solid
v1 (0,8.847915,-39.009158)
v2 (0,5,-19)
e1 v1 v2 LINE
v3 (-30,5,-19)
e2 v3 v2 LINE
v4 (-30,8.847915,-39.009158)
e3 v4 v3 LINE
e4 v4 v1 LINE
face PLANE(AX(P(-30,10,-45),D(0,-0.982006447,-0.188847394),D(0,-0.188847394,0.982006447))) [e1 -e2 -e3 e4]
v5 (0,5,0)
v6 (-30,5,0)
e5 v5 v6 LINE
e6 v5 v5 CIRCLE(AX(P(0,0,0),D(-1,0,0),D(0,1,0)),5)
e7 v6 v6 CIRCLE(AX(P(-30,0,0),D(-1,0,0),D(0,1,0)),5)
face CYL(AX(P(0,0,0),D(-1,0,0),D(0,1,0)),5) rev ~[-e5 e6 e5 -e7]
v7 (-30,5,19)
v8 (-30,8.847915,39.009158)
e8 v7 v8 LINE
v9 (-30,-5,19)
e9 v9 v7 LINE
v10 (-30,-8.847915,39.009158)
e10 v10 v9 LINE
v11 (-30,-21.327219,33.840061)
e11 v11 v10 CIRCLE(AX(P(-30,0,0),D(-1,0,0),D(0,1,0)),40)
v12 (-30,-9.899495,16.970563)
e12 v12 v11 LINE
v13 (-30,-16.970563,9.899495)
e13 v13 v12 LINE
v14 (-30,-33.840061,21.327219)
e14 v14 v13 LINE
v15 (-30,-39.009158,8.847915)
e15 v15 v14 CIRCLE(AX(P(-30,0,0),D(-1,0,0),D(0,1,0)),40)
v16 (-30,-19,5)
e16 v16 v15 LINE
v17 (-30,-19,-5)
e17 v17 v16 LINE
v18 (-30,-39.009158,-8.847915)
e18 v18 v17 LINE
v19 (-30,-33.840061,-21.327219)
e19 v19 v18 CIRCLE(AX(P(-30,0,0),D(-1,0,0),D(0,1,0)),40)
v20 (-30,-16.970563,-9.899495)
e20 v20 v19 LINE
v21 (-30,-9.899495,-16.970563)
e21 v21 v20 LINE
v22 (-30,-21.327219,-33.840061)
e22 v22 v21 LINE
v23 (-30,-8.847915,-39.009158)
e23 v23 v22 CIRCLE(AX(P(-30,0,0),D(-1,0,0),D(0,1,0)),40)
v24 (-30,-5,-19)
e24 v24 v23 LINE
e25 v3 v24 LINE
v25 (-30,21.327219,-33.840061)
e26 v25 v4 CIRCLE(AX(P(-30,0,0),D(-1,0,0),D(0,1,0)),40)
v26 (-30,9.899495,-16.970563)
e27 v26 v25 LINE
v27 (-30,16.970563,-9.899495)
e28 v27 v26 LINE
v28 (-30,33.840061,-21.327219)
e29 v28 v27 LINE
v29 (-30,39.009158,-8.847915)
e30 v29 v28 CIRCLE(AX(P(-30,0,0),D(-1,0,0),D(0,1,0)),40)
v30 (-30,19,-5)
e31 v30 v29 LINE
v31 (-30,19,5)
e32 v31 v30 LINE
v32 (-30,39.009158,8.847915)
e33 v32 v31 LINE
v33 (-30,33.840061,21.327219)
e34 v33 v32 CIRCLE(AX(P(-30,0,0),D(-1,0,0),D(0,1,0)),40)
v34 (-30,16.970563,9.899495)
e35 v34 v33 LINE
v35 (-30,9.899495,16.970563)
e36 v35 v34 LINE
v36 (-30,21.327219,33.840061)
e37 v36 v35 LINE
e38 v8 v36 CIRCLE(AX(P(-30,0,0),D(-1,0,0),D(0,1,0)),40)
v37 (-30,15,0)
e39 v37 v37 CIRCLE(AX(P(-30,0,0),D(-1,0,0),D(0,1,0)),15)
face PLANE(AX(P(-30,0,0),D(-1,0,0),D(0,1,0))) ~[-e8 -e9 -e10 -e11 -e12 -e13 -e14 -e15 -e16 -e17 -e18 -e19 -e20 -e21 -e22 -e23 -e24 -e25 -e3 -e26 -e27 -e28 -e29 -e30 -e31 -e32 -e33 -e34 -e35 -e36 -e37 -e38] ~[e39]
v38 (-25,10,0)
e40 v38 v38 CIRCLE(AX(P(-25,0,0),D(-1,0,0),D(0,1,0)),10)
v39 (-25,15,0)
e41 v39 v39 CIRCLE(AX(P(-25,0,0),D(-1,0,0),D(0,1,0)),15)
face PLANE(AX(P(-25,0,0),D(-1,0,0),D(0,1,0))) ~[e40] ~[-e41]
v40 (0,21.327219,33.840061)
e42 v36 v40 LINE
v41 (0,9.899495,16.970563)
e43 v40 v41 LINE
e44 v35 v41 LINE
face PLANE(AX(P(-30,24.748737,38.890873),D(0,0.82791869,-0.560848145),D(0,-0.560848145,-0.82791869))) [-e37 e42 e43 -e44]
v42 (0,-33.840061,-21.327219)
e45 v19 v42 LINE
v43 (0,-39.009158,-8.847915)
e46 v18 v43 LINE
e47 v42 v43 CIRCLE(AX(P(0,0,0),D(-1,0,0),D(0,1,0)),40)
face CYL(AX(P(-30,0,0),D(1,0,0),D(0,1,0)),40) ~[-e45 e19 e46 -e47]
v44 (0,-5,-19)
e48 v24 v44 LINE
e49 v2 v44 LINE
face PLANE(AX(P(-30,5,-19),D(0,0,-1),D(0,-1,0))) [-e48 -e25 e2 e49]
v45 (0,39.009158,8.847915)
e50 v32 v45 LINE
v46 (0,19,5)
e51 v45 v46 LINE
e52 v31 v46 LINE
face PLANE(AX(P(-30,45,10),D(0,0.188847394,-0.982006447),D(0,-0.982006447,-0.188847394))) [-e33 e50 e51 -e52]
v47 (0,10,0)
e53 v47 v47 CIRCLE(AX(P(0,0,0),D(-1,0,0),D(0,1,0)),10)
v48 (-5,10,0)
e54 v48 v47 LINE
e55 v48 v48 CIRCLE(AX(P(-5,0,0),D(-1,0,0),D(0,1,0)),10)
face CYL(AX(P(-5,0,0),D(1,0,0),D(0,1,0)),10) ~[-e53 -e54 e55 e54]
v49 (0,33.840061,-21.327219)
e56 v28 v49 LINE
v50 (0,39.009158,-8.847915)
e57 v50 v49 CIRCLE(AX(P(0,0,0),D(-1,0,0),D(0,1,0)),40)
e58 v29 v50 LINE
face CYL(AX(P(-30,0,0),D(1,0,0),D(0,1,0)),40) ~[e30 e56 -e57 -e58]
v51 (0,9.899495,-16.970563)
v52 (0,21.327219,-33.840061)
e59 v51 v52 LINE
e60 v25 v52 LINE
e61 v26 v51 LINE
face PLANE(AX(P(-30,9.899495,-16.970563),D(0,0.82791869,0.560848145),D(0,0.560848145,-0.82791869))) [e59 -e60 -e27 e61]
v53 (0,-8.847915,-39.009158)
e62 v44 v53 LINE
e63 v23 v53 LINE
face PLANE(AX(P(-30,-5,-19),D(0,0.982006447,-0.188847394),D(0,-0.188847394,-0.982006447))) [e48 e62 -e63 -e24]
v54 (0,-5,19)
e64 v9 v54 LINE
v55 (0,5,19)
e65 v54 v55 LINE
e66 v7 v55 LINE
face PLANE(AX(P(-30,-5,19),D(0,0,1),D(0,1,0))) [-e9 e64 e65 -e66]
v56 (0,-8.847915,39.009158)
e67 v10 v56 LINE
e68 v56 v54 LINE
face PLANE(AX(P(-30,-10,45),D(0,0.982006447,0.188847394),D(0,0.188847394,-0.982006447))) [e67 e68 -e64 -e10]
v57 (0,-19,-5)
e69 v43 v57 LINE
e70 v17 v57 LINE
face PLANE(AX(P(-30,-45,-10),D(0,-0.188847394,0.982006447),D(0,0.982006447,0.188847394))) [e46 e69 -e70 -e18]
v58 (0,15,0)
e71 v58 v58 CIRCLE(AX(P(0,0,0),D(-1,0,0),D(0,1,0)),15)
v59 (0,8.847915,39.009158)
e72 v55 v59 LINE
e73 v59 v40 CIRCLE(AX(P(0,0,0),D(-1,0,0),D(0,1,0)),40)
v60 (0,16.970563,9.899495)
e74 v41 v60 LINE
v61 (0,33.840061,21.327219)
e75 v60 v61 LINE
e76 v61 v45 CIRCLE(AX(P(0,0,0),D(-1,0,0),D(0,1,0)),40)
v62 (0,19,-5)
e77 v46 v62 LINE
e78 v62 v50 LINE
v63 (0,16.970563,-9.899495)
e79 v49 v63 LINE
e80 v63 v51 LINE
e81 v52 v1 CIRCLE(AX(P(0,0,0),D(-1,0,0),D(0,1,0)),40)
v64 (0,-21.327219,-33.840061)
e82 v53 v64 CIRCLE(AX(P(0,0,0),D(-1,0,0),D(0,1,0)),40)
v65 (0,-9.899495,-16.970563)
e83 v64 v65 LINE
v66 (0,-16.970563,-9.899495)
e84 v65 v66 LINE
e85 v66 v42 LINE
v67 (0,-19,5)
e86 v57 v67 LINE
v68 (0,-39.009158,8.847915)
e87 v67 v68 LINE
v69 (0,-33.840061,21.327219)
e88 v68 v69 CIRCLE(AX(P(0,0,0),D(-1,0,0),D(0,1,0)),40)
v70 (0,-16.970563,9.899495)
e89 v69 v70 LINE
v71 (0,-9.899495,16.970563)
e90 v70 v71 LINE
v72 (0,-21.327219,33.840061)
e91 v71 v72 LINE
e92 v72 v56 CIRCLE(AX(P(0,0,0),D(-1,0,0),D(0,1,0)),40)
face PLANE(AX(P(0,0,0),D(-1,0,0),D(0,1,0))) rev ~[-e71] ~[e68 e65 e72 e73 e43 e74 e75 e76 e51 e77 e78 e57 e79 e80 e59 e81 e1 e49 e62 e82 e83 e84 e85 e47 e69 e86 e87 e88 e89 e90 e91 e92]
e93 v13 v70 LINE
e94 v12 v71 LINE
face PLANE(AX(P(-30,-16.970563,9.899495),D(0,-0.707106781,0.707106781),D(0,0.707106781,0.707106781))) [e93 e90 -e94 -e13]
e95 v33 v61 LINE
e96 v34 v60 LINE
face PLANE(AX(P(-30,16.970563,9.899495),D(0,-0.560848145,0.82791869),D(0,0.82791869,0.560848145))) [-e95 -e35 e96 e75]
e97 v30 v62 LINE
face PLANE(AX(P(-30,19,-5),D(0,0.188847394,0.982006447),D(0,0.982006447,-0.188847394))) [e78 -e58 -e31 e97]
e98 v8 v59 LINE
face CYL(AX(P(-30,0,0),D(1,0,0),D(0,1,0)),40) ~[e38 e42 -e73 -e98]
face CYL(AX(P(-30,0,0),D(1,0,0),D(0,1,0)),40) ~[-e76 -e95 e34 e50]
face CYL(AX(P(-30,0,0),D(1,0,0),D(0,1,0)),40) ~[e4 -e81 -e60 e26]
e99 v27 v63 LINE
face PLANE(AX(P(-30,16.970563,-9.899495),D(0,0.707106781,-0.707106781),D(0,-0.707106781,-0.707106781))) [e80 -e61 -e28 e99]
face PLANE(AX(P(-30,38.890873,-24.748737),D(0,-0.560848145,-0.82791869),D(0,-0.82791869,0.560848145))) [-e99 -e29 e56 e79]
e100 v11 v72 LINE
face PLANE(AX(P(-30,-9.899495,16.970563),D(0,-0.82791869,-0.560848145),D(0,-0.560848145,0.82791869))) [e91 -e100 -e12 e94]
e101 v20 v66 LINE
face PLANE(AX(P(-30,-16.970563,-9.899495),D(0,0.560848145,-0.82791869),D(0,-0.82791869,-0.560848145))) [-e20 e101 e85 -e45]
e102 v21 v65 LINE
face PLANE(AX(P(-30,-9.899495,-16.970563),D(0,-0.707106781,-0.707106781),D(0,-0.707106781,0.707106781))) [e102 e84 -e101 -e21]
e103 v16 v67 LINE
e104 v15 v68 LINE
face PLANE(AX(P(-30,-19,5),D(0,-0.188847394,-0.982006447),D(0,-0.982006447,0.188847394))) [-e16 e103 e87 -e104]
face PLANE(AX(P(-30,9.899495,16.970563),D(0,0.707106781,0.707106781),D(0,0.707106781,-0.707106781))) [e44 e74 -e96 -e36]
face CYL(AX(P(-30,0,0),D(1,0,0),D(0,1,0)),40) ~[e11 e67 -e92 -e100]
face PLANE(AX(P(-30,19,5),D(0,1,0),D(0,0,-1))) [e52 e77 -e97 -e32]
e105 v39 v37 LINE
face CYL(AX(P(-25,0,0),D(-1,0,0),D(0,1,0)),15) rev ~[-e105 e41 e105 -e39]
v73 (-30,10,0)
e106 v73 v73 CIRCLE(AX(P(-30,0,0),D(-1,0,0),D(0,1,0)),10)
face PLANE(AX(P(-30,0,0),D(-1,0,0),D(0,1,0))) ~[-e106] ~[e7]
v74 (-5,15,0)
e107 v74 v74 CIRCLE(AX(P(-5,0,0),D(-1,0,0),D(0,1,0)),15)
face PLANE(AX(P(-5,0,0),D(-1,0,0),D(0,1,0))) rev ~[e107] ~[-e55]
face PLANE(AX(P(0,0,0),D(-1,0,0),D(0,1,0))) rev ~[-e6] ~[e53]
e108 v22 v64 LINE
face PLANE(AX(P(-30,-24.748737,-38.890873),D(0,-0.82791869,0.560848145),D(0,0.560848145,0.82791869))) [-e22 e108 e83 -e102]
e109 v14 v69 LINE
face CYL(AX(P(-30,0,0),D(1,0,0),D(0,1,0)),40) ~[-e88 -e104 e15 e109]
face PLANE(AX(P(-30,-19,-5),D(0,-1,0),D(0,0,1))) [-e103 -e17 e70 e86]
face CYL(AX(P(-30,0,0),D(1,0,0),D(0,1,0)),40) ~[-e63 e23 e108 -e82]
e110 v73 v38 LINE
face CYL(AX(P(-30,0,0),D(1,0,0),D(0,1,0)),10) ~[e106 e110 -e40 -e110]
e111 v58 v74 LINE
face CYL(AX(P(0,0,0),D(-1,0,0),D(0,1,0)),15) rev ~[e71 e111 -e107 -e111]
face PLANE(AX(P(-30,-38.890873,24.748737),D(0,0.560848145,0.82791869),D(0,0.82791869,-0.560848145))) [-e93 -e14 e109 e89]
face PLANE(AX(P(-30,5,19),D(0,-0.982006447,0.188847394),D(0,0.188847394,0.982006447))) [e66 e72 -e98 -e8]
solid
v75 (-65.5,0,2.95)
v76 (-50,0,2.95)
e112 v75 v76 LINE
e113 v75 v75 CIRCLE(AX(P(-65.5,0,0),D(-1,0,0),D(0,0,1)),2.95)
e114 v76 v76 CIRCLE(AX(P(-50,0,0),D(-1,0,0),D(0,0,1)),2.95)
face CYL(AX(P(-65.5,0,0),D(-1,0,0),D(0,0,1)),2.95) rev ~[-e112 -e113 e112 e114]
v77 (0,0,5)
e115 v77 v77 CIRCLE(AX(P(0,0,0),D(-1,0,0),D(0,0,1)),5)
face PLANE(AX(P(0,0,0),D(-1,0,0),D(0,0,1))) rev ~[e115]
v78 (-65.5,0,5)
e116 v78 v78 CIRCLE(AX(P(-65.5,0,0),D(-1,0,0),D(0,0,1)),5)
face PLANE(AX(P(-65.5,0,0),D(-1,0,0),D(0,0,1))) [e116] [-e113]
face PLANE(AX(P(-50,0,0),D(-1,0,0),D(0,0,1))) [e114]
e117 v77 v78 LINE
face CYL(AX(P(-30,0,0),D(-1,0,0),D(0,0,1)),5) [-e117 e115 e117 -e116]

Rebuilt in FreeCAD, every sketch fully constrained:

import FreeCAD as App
import Part
import Sketcher
from FreeCAD import Vector
Q = App.Units.Quantity

doc = App.newDocument("Part")
body = doc.addObject("PartDesign::Body", "Body")

# Sketch on XY plane
sketch1 = body.newObject("Sketcher::SketchObject", "Sketch")
sketch1.AttachmentSupport = (doc.getObject("XY_Plane"), [""])
sketch1.MapMode = "FlatFace"
sketch1.addGeometry(Part.LineSegment(Vector(-30, 5, 0), Vector(0, 5, 0)), False)
sketch1.addGeometry(Part.LineSegment(Vector(0, 5, 0), Vector(0, 10, 0)), False)
sketch1.addGeometry(Part.LineSegment(Vector(0, 10, 0), Vector(-5, 10, 0)), False)
sketch1.addGeometry(Part.LineSegment(Vector(-5, 10, 0), Vector(-5, 15, 0)), False)
sketch1.addGeometry(Part.LineSegment(Vector(-5, 15, 0), Vector(0, 15, 0)), False)
sketch1.addGeometry(Part.LineSegment(Vector(0, 15, 0), Vector(0, 40, 0)), False)
sketch1.addGeometry(Part.LineSegment(Vector(0, 40, 0), Vector(-30, 40, 0)), False)
sketch1.addGeometry(Part.LineSegment(Vector(-30, 40, 0), Vector(-30, 15, 0)), False)
sketch1.addGeometry(Part.LineSegment(Vector(-30, 15, 0), Vector(-25, 15, 0)), False)
sketch1.addGeometry(Part.LineSegment(Vector(-25, 15, 0), Vector(-25, 10, 0)), False)
sketch1.addGeometry(Part.LineSegment(Vector(-25, 10, 0), Vector(-30, 10, 0)), False)
sketch1.addGeometry(Part.LineSegment(Vector(-30, 10, 0), Vector(-30, 5, 0)), False)
sketch1.addConstraint(Sketcher.Constraint("Coincident", 0, 2, 1, 1))
sketch1.addConstraint(Sketcher.Constraint("Coincident", 1, 2, 2, 1))
sketch1.addConstraint(Sketcher.Constraint("Coincident", 2, 2, 3, 1))
sketch1.addConstraint(Sketcher.Constraint("Coincident", 3, 2, 4, 1))
sketch1.addConstraint(Sketcher.Constraint("Coincident", 4, 2, 5, 1))
sketch1.addConstraint(Sketcher.Constraint("Coincident", 5, 2, 6, 1))
sketch1.addConstraint(Sketcher.Constraint("Coincident", 6, 2, 7, 1))
sketch1.addConstraint(Sketcher.Constraint("Coincident", 7, 2, 8, 1))
sketch1.addConstraint(Sketcher.Constraint("Coincident", 8, 2, 9, 1))
sketch1.addConstraint(Sketcher.Constraint("Coincident", 9, 2, 10, 1))
sketch1.addConstraint(Sketcher.Constraint("Coincident", 10, 2, 11, 1))
sketch1.addConstraint(Sketcher.Constraint("Coincident", 11, 2, 0, 1))
sketch1.addConstraint(Sketcher.Constraint("Horizontal", 0))
sketch1.addConstraint(Sketcher.Constraint("Vertical", 1))
sketch1.addConstraint(Sketcher.Constraint("Horizontal", 2))
sketch1.addConstraint(Sketcher.Constraint("Vertical", 3))
sketch1.addConstraint(Sketcher.Constraint("Horizontal", 4))
sketch1.addConstraint(Sketcher.Constraint("Vertical", 5))
sketch1.addConstraint(Sketcher.Constraint("Horizontal", 6))
sketch1.addConstraint(Sketcher.Constraint("Vertical", 7))
sketch1.addConstraint(Sketcher.Constraint("Horizontal", 8))
sketch1.addConstraint(Sketcher.Constraint("Vertical", 9))
sketch1.addConstraint(Sketcher.Constraint("Horizontal", 10))
sketch1.addConstraint(Sketcher.Constraint("Vertical", 11))
sketch1.addConstraint(Sketcher.Constraint("PointOnObject", 0, 2, -2))
sketch1.addConstraint(Sketcher.Constraint("PointOnObject", 4, 2, -2))
sketch1.addConstraint(Sketcher.Constraint("Horizontal", 4, 2, 7, 2))
sketch1.addConstraint(Sketcher.Constraint("Horizontal", 2, 2, 9, 2))
sketch1.addConstraint(Sketcher.Constraint("Vertical", 7, 2, 10, 2))
sketch1.addConstraint(Sketcher.Constraint("Equal", 4, 8))
sketch1.addConstraint(Sketcher.Constraint("Equal", 10, 1))
sketch1.addConstraint(Sketcher.Constraint("Equal", 1, 3))
sketch1.addConstraint(Sketcher.Constraint("DistanceX", 0, 1, 0, 2, Q("30 mm")))
sketch1.addConstraint(Sketcher.Constraint("DistanceX", 2, 2, 2, 1, Q("5 mm")))
sketch1.addConstraint(Sketcher.Constraint("DistanceY", 5, 1, 5, 2, Q("25 mm")))
sketch1.addConstraint(Sketcher.Constraint("DistanceY", -1, 1, 0, 2, Q("5 mm")))
revolution = body.newObject("PartDesign::Revolution", "Revolution")
revolution.Profile = sketch1
revolution.ReferenceAxis = (sketch1, ["H_Axis"])
revolution.Angle = 360

# Sketch on YZ plane
sketch2 = body.newObject("Sketcher::SketchObject", "Sketch001")
sketch2.AttachmentSupport = (doc.getObject("YZ_Plane"), [""])
sketch2.MapMode = "FlatFace"
sketch2.AttachmentOffset = App.Placement(Vector(0, 0, -30), App.Rotation())
sketch2.addGeometry(Part.LineSegment(Vector(45, 10, 0), Vector(45, -10, 0)), False)
sketch2.addGeometry(Part.LineSegment(Vector(45, -10, 0), Vector(19, -5, 0)), False)
sketch2.addGeometry(Part.LineSegment(Vector(19, -5, 0), Vector(19, 5, 0)), False)
sketch2.addGeometry(Part.LineSegment(Vector(19, 5, 0), Vector(45, 10, 0)), False)
sketch2.addConstraint(Sketcher.Constraint("Coincident", 0, 2, 1, 1))
sketch2.addConstraint(Sketcher.Constraint("Coincident", 1, 2, 2, 1))
sketch2.addConstraint(Sketcher.Constraint("Coincident", 2, 2, 3, 1))
sketch2.addConstraint(Sketcher.Constraint("Coincident", 3, 2, 0, 1))
sketch2.addConstraint(Sketcher.Constraint("Vertical", 0))
sketch2.addConstraint(Sketcher.Constraint("Vertical", 2))
sketch2.addConstraint(Sketcher.Constraint("Equal", 1, 3))
sketch2.addConstraint(Sketcher.Constraint("DistanceY", 0, 2, 0, 1, Q("20 mm")))
sketch2.addConstraint(Sketcher.Constraint("DistanceY", 2, 1, 2, 2, Q("10 mm")))
sketch2.addConstraint(Sketcher.Constraint("DistanceX", -1, 1, 0, 2, Q("45 mm")))
sketch2.addConstraint(Sketcher.Constraint("DistanceY", 0, 2, -1, 1, Q("10 mm")))
sketch2.addConstraint(Sketcher.Constraint("DistanceX", -1, 1, 1, 2, Q("19 mm")))
pocket1 = body.newObject("PartDesign::Pocket", "Pocket")
pocket1.Profile = sketch2
pocket1.Type = "ThroughAll"
pocket1.Reversed = True
doc.recompute()

polarpattern = body.newObject("PartDesign::PolarPattern", "PolarPattern")
polarpattern.Originals = [pocket1]
polarpattern.Axis = (doc.getObject("X_Axis"), [""])
polarpattern.Angle = 360
polarpattern.Occurrences = 8
body.Tip = polarpattern
body2 = doc.addObject("PartDesign::Body", "Body001")

# Sketch on YZ plane
sketch3 = body2.newObject("Sketcher::SketchObject", "Sketch002")
sketch3.AttachmentSupport = (doc.getObject("YZ_Plane001"), [""])
sketch3.MapMode = "FlatFace"
sketch3.AttachmentOffset = App.Placement(Vector(0, 0, -30), App.Rotation())
sketch3.addGeometry(Part.Circle(Vector(0, 0, 0), Vector(0, 0, 1), 5), False)
sketch3.addConstraint(Sketcher.Constraint("Coincident", 0, 3, -1, 1))
sketch3.addConstraint(Sketcher.Constraint("Diameter", 0, Q("10 mm")))
pad1 = body2.newObject("PartDesign::Pad", "Pad")
pad1.Profile = sketch3
pad1.Type = "TwoLengths"
pad1.Length = 35.5
pad1.Length2 = 30
pad1.Reversed = True

# Sketch on YZ plane
sketch4 = body2.newObject("Sketcher::SketchObject", "Sketch003")
sketch4.AttachmentSupport = (doc.getObject("YZ_Plane001"), [""])
sketch4.MapMode = "FlatFace"
sketch4.AttachmentOffset = App.Placement(Vector(0, 0, -65.5), App.Rotation())
sketch4.addGeometry(Part.Circle(Vector(0, 0, 0), Vector(0, 0, 1), 3), False)
sketch4.addConstraint(Sketcher.Constraint("Coincident", 0, 3, -1, 1))
sketch4.addConstraint(Sketcher.Constraint("Diameter", 0, Q("5.9 mm")))
pocket2 = body2.newObject("PartDesign::Pocket", "Pocket001")
pocket2.Profile = sketch4
pocket2.Length = 15.5
pocket2.Reversed = True

doc.recompute()
